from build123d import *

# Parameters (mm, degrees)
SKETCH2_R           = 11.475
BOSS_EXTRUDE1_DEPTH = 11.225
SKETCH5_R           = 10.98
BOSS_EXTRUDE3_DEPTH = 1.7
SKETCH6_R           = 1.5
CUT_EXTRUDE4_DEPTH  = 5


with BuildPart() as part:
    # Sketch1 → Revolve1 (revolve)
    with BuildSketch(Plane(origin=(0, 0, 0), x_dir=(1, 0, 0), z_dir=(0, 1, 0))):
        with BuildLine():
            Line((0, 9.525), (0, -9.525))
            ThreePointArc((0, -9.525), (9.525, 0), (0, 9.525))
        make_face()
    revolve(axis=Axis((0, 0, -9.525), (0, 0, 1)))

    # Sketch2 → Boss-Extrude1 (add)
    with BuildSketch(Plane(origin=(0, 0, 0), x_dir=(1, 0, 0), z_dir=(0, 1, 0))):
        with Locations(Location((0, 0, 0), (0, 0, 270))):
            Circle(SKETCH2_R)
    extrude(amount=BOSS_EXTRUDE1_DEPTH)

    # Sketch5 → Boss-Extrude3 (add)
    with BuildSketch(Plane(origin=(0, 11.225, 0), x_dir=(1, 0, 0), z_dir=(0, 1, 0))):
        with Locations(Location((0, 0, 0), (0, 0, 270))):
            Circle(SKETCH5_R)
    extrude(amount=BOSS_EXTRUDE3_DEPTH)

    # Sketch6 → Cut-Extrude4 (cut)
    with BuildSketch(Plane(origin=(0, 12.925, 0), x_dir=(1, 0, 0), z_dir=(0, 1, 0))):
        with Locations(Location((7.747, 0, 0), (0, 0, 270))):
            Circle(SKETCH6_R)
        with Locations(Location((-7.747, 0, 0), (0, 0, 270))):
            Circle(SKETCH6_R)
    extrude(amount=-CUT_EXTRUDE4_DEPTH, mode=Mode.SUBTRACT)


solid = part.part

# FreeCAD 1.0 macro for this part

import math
import FreeCAD as App
import Part
import Sketcher
from FreeCAD import Vector
Q = App.Units.Quantity

doc = App.newDocument("Part")
body = doc.addObject("PartDesign::Body", "Body")

# Sketch on XZ plane
sketch1 = doc.addObject("Sketcher::SketchObject", "Sketch")
body.addObject(sketch1)
sketch1.AttachmentSupport = (doc.XZ_Plane, [""])
sketch1.MapMode = "FlatFace"
sketch1.addGeometry(Part.LineSegment(Vector(0, -10, 0), Vector(0, 10, 0)), False)
sketch1.addGeometry(Part.ArcOfCircle(Part.Circle(Vector(0, 0, 0), Vector(0, 0, 1), 10), math.radians(-90), math.radians(90)), False)
sketch1.addConstraint(Sketcher.Constraint("Coincident", 0, 1, 1, 1))
sketch1.addConstraint(Sketcher.Constraint("Coincident", 1, 2, 0, 2))
sketch1.addConstraint(Sketcher.Constraint("Vertical", 0))
sketch1.addConstraint(Sketcher.Constraint("Coincident", 1, 3, -1, 1))
sketch1.addConstraint(Sketcher.Constraint("PointOnObject", 0, 1, -2))
sketch1.addConstraint(Sketcher.Constraint("Radius", 1, Q("9.525 mm")))
revolution = doc.addObject("PartDesign::Revolution", "Revolution")
body.addObject(revolution)
revolution.Profile = sketch1
revolution.ReferenceAxis = (sketch1, ["V_Axis"])
revolution.Angle = 360

# Sketch on XZ plane
sketch2 = doc.addObject("Sketcher::SketchObject", "Sketch001")
body.addObject(sketch2)
sketch2.AttachmentSupport = (doc.XZ_Plane, [""])
sketch2.MapMode = "FlatFace"
sketch2.addGeometry(Part.Circle(Vector(0, 0, 0), Vector(0, 0, 1), 11), False)
sketch2.addConstraint(Sketcher.Constraint("Coincident", 0, 3, -1, 1))
sketch2.addConstraint(Sketcher.Constraint("Diameter", 0, Q("22.95 mm")))
pad1 = doc.addObject("PartDesign::Pad", "Pad")
body.addObject(pad1)
pad1.Profile = sketch2
pad1.Length = 11.225
pad1.Reversed = True

# Sketch on XZ plane
sketch3 = doc.addObject("Sketcher::SketchObject", "Sketch002")
body.addObject(sketch3)
sketch3.AttachmentSupport = (doc.XZ_Plane, [""])
sketch3.MapMode = "FlatFace"
sketch3.AttachmentOffset = App.Placement(Vector(0, 0, -11.225), App.Rotation())
sketch3.addGeometry(Part.Circle(Vector(0, 0, 0), Vector(0, 0, 1), 11), False)
sketch3.addConstraint(Sketcher.Constraint("Coincident", 0, 3, -1, 1))
sketch3.addConstraint(Sketcher.Constraint("Diameter", 0, Q("21.96 mm")))
pad2 = doc.addObject("PartDesign::Pad", "Pad001")
body.addObject(pad2)
pad2.Profile = sketch3
pad2.Length = 1.7
pad2.Reversed = True

# Sketch on XZ plane
sketch4 = doc.addObject("Sketcher::SketchObject", "Sketch003")
body.addObject(sketch4)
sketch4.AttachmentSupport = (doc.XZ_Plane, [""])
sketch4.MapMode = "FlatFace"
sketch4.AttachmentOffset = App.Placement(Vector(0, 0, -12.925), App.Rotation())
sketch4.addGeometry(Part.Circle(Vector(7.7, 0, 0), Vector(0, 0, 1), 1.5), False)
sketch4.addGeometry(Part.Circle(Vector(-7.7, 0, 0), Vector(0, 0, 1), 1.5), False)
sketch4.addConstraint(Sketcher.Constraint("Equal", 0, 1))
sketch4.addConstraint(Sketcher.Constraint("Symmetric", 0, 3, 1, 3, -1, 1))
sketch4.addConstraint(Sketcher.Constraint("PointOnObject", 0, 3, -1))
sketch4.addConstraint(Sketcher.Constraint("Diameter", 0, Q("3 mm")))
sketch4.addConstraint(Sketcher.Constraint("DistanceX", -1, 1, 0, 3, Q("7.747 mm")))
pocket1 = doc.addObject("PartDesign::Pocket", "Pocket")
body.addObject(pocket1)
pocket1.Profile = sketch4
pocket1.Length = 5
pocket1.Reversed = True

doc.recompute()
